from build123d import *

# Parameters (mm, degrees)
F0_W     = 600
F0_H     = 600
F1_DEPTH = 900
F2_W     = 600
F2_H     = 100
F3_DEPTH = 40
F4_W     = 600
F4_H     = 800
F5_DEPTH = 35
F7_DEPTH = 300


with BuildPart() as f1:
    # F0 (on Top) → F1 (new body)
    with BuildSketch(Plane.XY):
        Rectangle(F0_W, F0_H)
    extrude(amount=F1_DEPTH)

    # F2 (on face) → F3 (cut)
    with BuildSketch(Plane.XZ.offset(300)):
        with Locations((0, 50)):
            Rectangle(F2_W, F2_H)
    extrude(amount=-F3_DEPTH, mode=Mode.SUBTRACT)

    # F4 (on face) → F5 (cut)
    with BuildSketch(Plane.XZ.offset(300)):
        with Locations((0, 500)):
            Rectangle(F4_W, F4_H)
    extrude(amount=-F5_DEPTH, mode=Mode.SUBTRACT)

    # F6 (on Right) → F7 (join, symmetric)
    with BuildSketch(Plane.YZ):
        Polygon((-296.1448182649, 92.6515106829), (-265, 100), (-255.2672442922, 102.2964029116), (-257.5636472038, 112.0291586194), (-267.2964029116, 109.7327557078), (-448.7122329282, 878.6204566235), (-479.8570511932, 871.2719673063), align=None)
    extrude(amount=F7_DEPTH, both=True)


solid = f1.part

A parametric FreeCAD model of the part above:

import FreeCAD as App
import Part
import Sketcher
Q = App.Units.Quantity


def add_polygon(sketch, points):
    """Adds a closed chain of lines whose ends are joined by coincident constraints."""
    first, n = sketch.GeometryCount, len(points)
    for a, b in zip(points, points[1:] + points[:1]):
        sketch.addGeometry(Part.LineSegment(App.Vector(*a, 0), App.Vector(*b, 0)), False)
    for i in range(n):
        sketch.addConstraint(Sketcher.Constraint("Coincident", first + i, 2, first + (i + 1) % n, 1))

doc = App.newDocument("Part")
body = doc.addObject("PartDesign::Body", "Body")

# Sketch on XY plane
sketch1 = body.newObject("Sketcher::SketchObject", "Sketch")
sketch1.AttachmentSupport = (doc.getObject("XY_Plane"), [""])
sketch1.MapMode = "FlatFace"
add_polygon(sketch1, [(-300, 300), (-300, -300), (300, -300), (300, 300)])  # lines 0-3
sketch1.addConstraint([
    Sketcher.Constraint("Vertical", 0),
    Sketcher.Constraint("Horizontal", 1),
    Sketcher.Constraint("Vertical", 2),
    Sketcher.Constraint("Horizontal", 3),
    Sketcher.Constraint("Symmetric", 0, 2, 2, 2, -1, 1),
    Sketcher.Constraint("Equal", 3, 0),
    Sketcher.Constraint("DistanceX", 1, 1, 1, 2, Q("600 mm")),
])
pad1 = body.newObject("PartDesign::Pad", "Pad")
pad1.Profile = sketch1
pad1.Length = 900

# Sketch on XZ plane
sketch2 = body.newObject("Sketcher::SketchObject", "Sketch001")
sketch2.AttachmentSupport = (doc.getObject("XZ_Plane"), [""])
sketch2.MapMode = "FlatFace"
sketch2.AttachmentOffset = App.Placement(App.Vector(0, 0, 300), App.Rotation())
add_polygon(sketch2, [(-300, 100), (-300, 0), (300, 0), (300, 100)])  # lines 0-3
sketch2.addConstraint([
    Sketcher.Constraint("Vertical", 0),
    Sketcher.Constraint("Horizontal", 1),
    Sketcher.Constraint("Vertical", 2),
    Sketcher.Constraint("Horizontal", 3),
    Sketcher.Constraint("Symmetric", 0, 2, 1, 2, -1, 1),
    Sketcher.Constraint("DistanceX", 1, 1, 1, 2, Q("600 mm")),
    Sketcher.Constraint("DistanceY", 0, 2, 0, 1, Q("100 mm")),
])
pocket1 = body.newObject("PartDesign::Pocket", "Pocket")
pocket1.Profile = sketch2
pocket1.Length = 40

# Sketch on XZ plane
sketch3 = body.newObject("Sketcher::SketchObject", "Sketch002")
sketch3.AttachmentSupport = (doc.getObject("XZ_Plane"), [""])
sketch3.MapMode = "FlatFace"
sketch3.AttachmentOffset = App.Placement(App.Vector(0, 0, 300), App.Rotation())
add_polygon(sketch3, [(-300, 900), (-300, 100), (300, 100), (300, 900)])  # lines 0-3
sketch3.addConstraint([
    Sketcher.Constraint("Vertical", 0),
    Sketcher.Constraint("Horizontal", 1),
    Sketcher.Constraint("Vertical", 2),
    Sketcher.Constraint("Horizontal", 3),
    Sketcher.Constraint("DistanceX", 1, 1, 1, 2, Q("600 mm")),
    Sketcher.Constraint("DistanceY", 0, 2, 0, 1, Q("800 mm")),
    Sketcher.Constraint("DistanceX", 0, 2, -1, 1, Q("300 mm")),
    Sketcher.Constraint("DistanceY", -1, 1, 0, 2, Q("100 mm")),
])
pocket2 = body.newObject("PartDesign::Pocket", "Pocket001")
pocket2.Profile = sketch3
pocket2.Length = 35

# Sketch on YZ plane
sketch4 = body.newObject("Sketcher::SketchObject", "Sketch003")
sketch4.AttachmentSupport = (doc.getObject("YZ_Plane"), [""])
sketch4.MapMode = "FlatFace"
add_polygon(sketch4, [(-296, 93), (-255, 102), (-258, 112), (-267, 110), (-449, 879), (-480, 871)])  # lines 0-5
sketch4.addConstraint([
    Sketcher.Constraint("Perpendicular", 0, 1),
    Sketcher.Constraint("Perpendicular", 1, 2),
    Sketcher.Constraint("Perpendicular", 2, 3),
    Sketcher.Constraint("Perpendicular", 3, 4),
    Sketcher.Constraint("Perpendicular", 4, 5),
    Sketcher.Constraint("Equal", 1, 2),
    Sketcher.Constraint("Distance", 0, Q("42 mm")),
    Sketcher.Constraint("Distance", 1, Q("10 mm")),
    Sketcher.Constraint("Distance", 3, Q("790 mm")),
    Sketcher.Constraint("DistanceY", 2, 2, 3, 2, Q("768.887701 mm")),
    Sketcher.Constraint("DistanceY", -1, 1, 1, 2, Q("112.029159 mm")),
    Sketcher.Constraint("DistanceX", 4, 2, -1, 1, Q("479.857051 mm")),
])
pad2 = body.newObject("PartDesign::Pad", "Pad001")
pad2.Profile = sketch4
pad2.Length = 600
pad2.Midplane = True

doc.recompute()
